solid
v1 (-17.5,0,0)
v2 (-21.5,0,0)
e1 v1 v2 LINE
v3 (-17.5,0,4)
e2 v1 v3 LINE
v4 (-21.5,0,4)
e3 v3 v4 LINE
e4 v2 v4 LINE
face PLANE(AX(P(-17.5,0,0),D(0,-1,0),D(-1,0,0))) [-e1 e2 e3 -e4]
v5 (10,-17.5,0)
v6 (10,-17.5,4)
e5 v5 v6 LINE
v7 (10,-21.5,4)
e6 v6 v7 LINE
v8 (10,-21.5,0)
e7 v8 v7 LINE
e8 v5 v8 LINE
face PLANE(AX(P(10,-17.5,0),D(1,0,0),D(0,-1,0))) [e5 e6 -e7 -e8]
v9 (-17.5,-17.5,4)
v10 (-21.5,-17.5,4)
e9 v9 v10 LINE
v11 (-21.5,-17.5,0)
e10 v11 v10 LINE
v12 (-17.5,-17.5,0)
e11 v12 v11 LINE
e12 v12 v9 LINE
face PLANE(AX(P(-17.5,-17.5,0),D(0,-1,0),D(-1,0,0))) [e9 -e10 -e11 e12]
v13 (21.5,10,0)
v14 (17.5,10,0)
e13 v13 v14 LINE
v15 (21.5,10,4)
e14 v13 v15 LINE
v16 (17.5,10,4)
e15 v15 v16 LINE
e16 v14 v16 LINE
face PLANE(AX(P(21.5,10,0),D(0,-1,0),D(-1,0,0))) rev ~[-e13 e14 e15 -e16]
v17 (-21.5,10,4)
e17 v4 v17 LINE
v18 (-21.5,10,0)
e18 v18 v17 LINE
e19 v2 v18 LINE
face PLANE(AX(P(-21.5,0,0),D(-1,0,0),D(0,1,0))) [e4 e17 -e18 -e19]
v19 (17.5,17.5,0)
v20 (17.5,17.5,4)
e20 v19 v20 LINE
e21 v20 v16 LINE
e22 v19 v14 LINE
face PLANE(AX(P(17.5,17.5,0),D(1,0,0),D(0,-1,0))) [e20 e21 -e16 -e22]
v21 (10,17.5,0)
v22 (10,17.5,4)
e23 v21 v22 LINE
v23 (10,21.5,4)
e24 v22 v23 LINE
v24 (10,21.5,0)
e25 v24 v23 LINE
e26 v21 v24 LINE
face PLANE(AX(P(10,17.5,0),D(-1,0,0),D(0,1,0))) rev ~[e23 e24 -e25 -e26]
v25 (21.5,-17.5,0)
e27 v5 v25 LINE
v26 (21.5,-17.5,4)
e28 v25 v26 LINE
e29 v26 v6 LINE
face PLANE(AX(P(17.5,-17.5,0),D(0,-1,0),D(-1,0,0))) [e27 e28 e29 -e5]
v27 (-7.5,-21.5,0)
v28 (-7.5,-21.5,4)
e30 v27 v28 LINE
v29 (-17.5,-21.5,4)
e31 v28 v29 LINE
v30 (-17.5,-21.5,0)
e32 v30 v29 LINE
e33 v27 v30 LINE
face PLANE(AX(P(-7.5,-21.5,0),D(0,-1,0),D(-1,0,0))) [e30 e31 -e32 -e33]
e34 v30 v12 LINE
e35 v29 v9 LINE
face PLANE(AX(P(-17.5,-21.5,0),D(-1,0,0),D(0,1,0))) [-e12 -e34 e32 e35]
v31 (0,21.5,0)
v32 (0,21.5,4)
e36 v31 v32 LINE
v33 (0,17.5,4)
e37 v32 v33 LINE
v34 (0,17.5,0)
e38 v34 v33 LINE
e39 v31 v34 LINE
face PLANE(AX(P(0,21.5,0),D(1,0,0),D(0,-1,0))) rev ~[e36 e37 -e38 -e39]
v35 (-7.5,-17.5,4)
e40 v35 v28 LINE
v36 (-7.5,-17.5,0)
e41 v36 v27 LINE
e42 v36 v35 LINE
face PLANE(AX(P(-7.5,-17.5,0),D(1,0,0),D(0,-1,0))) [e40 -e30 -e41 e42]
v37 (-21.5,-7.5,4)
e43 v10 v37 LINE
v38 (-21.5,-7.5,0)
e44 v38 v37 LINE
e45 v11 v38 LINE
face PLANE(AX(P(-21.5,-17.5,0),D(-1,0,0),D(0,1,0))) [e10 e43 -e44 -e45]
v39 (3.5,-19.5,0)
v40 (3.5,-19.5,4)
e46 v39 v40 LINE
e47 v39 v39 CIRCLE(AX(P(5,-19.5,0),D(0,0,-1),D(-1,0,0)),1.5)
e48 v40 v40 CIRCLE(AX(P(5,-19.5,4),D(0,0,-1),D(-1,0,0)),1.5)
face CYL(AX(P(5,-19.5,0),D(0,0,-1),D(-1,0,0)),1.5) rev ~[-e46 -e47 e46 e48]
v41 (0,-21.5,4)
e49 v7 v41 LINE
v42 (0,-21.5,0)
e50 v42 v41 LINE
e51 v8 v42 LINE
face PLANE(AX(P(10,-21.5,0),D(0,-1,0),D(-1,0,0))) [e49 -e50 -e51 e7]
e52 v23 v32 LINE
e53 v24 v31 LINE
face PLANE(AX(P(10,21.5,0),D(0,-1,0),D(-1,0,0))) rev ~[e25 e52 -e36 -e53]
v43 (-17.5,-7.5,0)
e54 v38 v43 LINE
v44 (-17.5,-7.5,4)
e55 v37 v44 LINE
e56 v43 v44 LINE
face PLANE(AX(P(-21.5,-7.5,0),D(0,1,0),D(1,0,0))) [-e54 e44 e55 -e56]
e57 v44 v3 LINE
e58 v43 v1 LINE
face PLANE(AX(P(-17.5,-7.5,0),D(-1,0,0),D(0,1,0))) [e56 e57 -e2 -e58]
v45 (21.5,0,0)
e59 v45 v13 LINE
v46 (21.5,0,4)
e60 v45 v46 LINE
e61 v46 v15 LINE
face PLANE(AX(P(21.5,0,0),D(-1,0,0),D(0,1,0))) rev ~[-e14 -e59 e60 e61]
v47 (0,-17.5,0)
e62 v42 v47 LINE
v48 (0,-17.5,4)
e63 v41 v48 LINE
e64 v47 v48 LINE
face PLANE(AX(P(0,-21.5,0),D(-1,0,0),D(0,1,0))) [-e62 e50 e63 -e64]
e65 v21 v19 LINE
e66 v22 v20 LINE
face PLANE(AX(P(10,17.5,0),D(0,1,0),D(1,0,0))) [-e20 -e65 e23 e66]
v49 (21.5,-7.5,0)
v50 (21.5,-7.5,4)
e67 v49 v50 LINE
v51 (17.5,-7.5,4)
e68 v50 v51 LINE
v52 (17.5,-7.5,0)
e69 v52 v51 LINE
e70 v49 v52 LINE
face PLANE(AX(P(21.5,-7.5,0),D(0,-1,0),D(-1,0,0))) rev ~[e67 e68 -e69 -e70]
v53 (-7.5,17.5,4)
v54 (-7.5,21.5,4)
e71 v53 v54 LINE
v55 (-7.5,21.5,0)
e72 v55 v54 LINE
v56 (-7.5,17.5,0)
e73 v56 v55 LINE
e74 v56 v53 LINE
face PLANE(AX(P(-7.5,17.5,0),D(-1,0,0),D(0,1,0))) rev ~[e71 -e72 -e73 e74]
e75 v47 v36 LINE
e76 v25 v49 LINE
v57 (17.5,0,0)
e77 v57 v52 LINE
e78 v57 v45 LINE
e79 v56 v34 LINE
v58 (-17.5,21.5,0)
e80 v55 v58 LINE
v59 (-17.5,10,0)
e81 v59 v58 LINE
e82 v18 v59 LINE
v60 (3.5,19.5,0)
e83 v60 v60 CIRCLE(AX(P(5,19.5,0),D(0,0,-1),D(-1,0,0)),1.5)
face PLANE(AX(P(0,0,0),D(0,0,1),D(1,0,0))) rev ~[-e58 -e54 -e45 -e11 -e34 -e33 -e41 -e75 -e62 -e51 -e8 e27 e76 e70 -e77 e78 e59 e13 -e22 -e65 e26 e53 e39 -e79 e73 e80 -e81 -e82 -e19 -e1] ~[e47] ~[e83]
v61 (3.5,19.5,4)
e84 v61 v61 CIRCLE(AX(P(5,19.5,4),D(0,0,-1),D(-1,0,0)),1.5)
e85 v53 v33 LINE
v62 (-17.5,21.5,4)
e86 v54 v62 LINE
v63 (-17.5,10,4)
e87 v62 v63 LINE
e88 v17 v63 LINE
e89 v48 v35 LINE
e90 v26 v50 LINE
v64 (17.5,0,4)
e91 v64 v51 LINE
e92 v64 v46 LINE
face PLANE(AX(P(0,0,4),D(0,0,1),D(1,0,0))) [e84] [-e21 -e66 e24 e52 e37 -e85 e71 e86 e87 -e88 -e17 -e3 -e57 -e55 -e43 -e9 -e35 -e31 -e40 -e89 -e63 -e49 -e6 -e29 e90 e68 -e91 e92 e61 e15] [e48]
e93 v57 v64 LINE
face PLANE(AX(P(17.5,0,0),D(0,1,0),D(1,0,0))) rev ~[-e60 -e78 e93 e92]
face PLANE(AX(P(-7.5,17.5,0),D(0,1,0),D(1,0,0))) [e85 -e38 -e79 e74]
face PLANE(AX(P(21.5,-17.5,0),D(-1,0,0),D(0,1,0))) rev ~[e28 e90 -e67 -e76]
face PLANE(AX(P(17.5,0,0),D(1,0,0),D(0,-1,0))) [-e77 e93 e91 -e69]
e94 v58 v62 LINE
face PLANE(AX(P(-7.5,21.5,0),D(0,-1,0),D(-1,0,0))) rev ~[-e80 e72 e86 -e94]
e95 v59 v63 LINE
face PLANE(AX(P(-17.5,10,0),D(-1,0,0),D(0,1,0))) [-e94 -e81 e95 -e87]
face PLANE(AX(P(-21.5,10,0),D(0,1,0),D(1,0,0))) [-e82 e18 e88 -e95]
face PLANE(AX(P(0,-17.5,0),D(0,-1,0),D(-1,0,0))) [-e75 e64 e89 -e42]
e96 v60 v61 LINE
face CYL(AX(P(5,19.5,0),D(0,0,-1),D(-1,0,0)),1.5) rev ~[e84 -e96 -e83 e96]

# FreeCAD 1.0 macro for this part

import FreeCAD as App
import Part
import Sketcher

doc = App.newDocument("Part")
body = doc.addObject("PartDesign::Body", "Body")

# Sketch on XY plane
sketch1 = doc.addObject("Sketcher::SketchObject", "Sketch")
body.addObject(sketch1)
sketch1.AttachmentSupport = (doc.XY_Plane, [""])
sketch1.MapMode = "FlatFace"
sketch1.addGeometry([
    Part.LineSegment(App.Vector(10, -17.5, 0), App.Vector(21.5, -17.5, 0)),  # 0
    Part.LineSegment(App.Vector(21.5, -17.5, 0), App.Vector(21.5, -7.5, 0)),  # 1
    Part.LineSegment(App.Vector(21.5, -7.5, 0), App.Vector(17.5, -7.5, 0)),  # 2
    Part.LineSegment(App.Vector(17.5, -7.5, 0), App.Vector(17.5, 0, 0)),  # 3
    Part.LineSegment(App.Vector(17.5, 0, 0), App.Vector(21.5, 0, 0)),  # 4
    Part.LineSegment(App.Vector(21.5, 0, 0), App.Vector(21.5, 10, 0)),  # 5
    Part.LineSegment(App.Vector(21.5, 10, 0), App.Vector(17.5, 10, 0)),  # 6
    Part.LineSegment(App.Vector(17.5, 10, 0), App.Vector(17.5, 17.5, 0)),  # 7
    Part.LineSegment(App.Vector(17.5, 17.5, 0), App.Vector(10, 17.5, 0)),  # 8
    Part.LineSegment(App.Vector(10, 17.5, 0), App.Vector(10, 21.5, 0)),  # 9
    Part.LineSegment(App.Vector(10, 21.5, 0), App.Vector(0, 21.5, 0)),  # 10
    Part.LineSegment(App.Vector(0, 21.5, 0), App.Vector(0, 17.5, 0)),  # 11
    Part.LineSegment(App.Vector(0, 17.5, 0), App.Vector(-7.5, 17.5, 0)),  # 12
    Part.LineSegment(App.Vector(-7.5, 17.5, 0), App.Vector(-7.5, 21.5, 0)),  # 13
    Part.LineSegment(App.Vector(-7.5, 21.5, 0), App.Vector(-17.5, 21.5, 0)),  # 14
    Part.LineSegment(App.Vector(-17.5, 21.5, 0), App.Vector(-17.5, 10, 0)),  # 15
    Part.LineSegment(App.Vector(-17.5, 10, 0), App.Vector(-21.5, 10, 0)),  # 16
    Part.LineSegment(App.Vector(-21.5, 10, 0), App.Vector(-21.5, 0, 0)),  # 17
    Part.LineSegment(App.Vector(-21.5, 0, 0), App.Vector(-17.5, 0, 0)),  # 18
    Part.LineSegment(App.Vector(-17.5, 0, 0), App.Vector(-17.5, -7.5, 0)),  # 19
    Part.LineSegment(App.Vector(-17.5, -7.5, 0), App.Vector(-21.5, -7.5, 0)),  # 20
    Part.LineSegment(App.Vector(-21.5, -7.5, 0), App.Vector(-21.5, -17.5, 0)),  # 21
    Part.LineSegment(App.Vector(-21.5, -17.5, 0), App.Vector(-17.5, -17.5, 0)),  # 22
    Part.LineSegment(App.Vector(-17.5, -17.5, 0), App.Vector(-17.5, -21.5, 0)),  # 23
    Part.LineSegment(App.Vector(-17.5, -21.5, 0), App.Vector(-7.5, -21.5, 0)),  # 24
    Part.LineSegment(App.Vector(-7.5, -21.5, 0), App.Vector(-7.5, -17.5, 0)),  # 25
    Part.LineSegment(App.Vector(-7.5, -17.5, 0), App.Vector(0, -17.5, 0)),  # 26
    Part.LineSegment(App.Vector(0, -17.5, 0), App.Vector(0, -21.5, 0)),  # 27
    Part.LineSegment(App.Vector(0, -21.5, 0), App.Vector(10, -21.5, 0)),  # 28
    Part.LineSegment(App.Vector(10, -21.5, 0), App.Vector(10, -17.5, 0)),  # 29
], False)
sketch1.addConstraint([
    Sketcher.Constraint("Coincident", 0, 2, 1, 1),
    Sketcher.Constraint("Coincident", 1, 2, 2, 1),
    Sketcher.Constraint("Coincident", 2, 2, 3, 1),
    Sketcher.Constraint("Coincident", 3, 2, 4, 1),
    Sketcher.Constraint("Coincident", 4, 2, 5, 1),
    Sketcher.Constraint("Coincident", 5, 2, 6, 1),
    Sketcher.Constraint("Coincident", 6, 2, 7, 1),
    Sketcher.Constraint("Coincident", 7, 2, 8, 1),
    Sketcher.Constraint("Coincident", 8, 2, 9, 1),
    Sketcher.Constraint("Coincident", 9, 2, 10, 1),
    Sketcher.Constraint("Coincident", 10, 2, 11, 1),
    Sketcher.Constraint("Coincident", 11, 2, 12, 1),
    Sketcher.Constraint("Coincident", 12, 2, 13, 1),
    Sketcher.Constraint("Coincident", 13, 2, 14, 1),
    Sketcher.Constraint("Coincident", 14, 2, 15, 1),
    Sketcher.Constraint("Coincident", 15, 2, 16, 1),
    Sketcher.Constraint("Coincident", 16, 2, 17, 1),
    Sketcher.Constraint("Coincident", 17, 2, 18, 1),
    Sketcher.Constraint("Coincident", 18, 2, 19, 1),
    Sketcher.Constraint("Coincident", 19, 2, 20, 1),
    Sketcher.Constraint("Coincident", 20, 2, 21, 1),
    Sketcher.Constraint("Coincident", 21, 2, 22, 1),
    Sketcher.Constraint("Coincident", 22, 2, 23, 1),
    Sketcher.Constraint("Coincident", 23, 2, 24, 1),
    Sketcher.Constraint("Coincident", 24, 2, 25, 1),
    Sketcher.Constraint("Coincident", 25, 2, 26, 1),
    Sketcher.Constraint("Coincident", 26, 2, 27, 1),
    Sketcher.Constraint("Coincident", 27, 2, 28, 1),
    Sketcher.Constraint("Coincident", 28, 2, 29, 1),
    Sketcher.Constraint("Coincident", 29, 2, 0, 1),
    Sketcher.Constraint("Horizontal", 0),
    Sketcher.Constraint("Vertical", 1),
    Sketcher.Constraint("Horizontal", 2),
    Sketcher.Constraint("Vertical", 3),
    Sketcher.Constraint("Horizontal", 4),
    Sketcher.Constraint("Vertical", 5),
    Sketcher.Constraint("Horizontal", 6),
    Sketcher.Constraint("Vertical", 7),
    Sketcher.Constraint("Horizontal", 8),
    Sketcher.Constraint("Vertical", 9),
    Sketcher.Constraint("Horizontal", 10),
    Sketcher.Constraint("Vertical", 11),
    Sketcher.Constraint("Horizontal", 12),
    Sketcher.Constraint("Vertical", 13),
    Sketcher.Constraint("Horizontal", 14),
    Sketcher.Constraint("Vertical", 15),
    Sketcher.Constraint("Horizontal", 16),
    Sketcher.Constraint("Vertical", 17),
    Sketcher.Constraint("Horizontal", 18),
    Sketcher.Constraint("Vertical", 19),
    Sketcher.Constraint("Horizontal", 20),
    Sketcher.Constraint("Vertical", 21),
    Sketcher.Constraint("Horizontal", 22),
    Sketcher.Constraint("Vertical", 23),
    Sketcher.Constraint("Horizontal", 24),
    Sketcher.Constraint("Vertical", 25),
    Sketcher.Constraint("Horizontal", 26),
    Sketcher.Constraint("Vertical", 27),
    Sketcher.Constraint("Horizontal", 28),
    Sketcher.Constraint("Vertical", 29),
    Sketcher.Constraint("Symmetric", 4, 2, 17, 2, -1, 1),
    Sketcher.Constraint("Symmetric", 7, 2, 22, 2, -1, 1),
    Sketcher.Constraint("Symmetric", 11, 2, 26, 2, -1, 1),
    Sketcher.Constraint("Symmetric", 6, 2, 15, 2, -2),
    Sketcher.Constraint("Symmetric", 3, 2, 18, 2, -2),
    Sketcher.Constraint("Symmetric", 1, 2, 20, 2, -2),
    Sketcher.Constraint("Symmetric", 13, 2, 24, 2, -1),
    Sketcher.Constraint("Symmetric", 10, 2, 27, 2, -1),
    Sketcher.Constraint("Symmetric", 8, 2, 29, 2, -1),
    Sketcher.Constraint("Horizontal", 8, 2, 11, 2),
    Sketcher.Constraint("Horizontal", 10, 2, 13, 2),
    Sketcher.Constraint("Vertical", 1, 2, 4, 2),
    Sketcher.Constraint("Vertical", 3, 2, 6, 2),
    Sketcher.Constraint("Equal", 8, 12),
    Sketcher.Constraint("Equal", 28, 1),
    Sketcher.Constraint("Equal", 26, 3),
    Sketcher.Constraint("Equal", 1, 5),
    Sketcher.Constraint("Equal", 22, 9),
    Sketcher.Constraint("DistanceX", 2, 2, 2, 1, 4.0),
    Sketcher.Constraint("DistanceX", 10, 2, 10, 1, 10.0),
    Sketcher.Constraint("DistanceX", 8, 2, 8, 1, 7.5),
])
pad1 = doc.addObject("PartDesign::Pad", "Pad")
body.addObject(pad1)
pad1.Profile = sketch1
pad1.Length = 4

# Sketch on XY plane
sketch2 = doc.addObject("Sketcher::SketchObject", "Sketch001")
body.addObject(sketch2)
sketch2.AttachmentSupport = (doc.XY_Plane, [""])
sketch2.MapMode = "FlatFace"
sketch2.addGeometry([
    Part.Circle(App.Vector(5, 19.5, 0), App.Vector(0, 0, 1), 1.5),
    Part.Circle(App.Vector(5, -19.5, 0), App.Vector(0, 0, 1), 1.5),
], False)
sketch2.addConstraint([
    Sketcher.Constraint("Equal", 0, 1),
    Sketcher.Constraint("Symmetric", 0, 3, 1, 3, -1),
    Sketcher.Constraint("Diameter", 0, 3.0),
    Sketcher.Constraint("DistanceX", -1, 1, 0, 3, 5.0),
    Sketcher.Constraint("DistanceY", 1, 3, 0, 3, 39.0),
])
pocket1 = doc.addObject("PartDesign::Pocket", "Pocket")
body.addObject(pocket1)
pocket1.Profile = sketch2
pocket1.Type = "UpToFirst"
pocket1.Reversed = True

doc.recompute()
